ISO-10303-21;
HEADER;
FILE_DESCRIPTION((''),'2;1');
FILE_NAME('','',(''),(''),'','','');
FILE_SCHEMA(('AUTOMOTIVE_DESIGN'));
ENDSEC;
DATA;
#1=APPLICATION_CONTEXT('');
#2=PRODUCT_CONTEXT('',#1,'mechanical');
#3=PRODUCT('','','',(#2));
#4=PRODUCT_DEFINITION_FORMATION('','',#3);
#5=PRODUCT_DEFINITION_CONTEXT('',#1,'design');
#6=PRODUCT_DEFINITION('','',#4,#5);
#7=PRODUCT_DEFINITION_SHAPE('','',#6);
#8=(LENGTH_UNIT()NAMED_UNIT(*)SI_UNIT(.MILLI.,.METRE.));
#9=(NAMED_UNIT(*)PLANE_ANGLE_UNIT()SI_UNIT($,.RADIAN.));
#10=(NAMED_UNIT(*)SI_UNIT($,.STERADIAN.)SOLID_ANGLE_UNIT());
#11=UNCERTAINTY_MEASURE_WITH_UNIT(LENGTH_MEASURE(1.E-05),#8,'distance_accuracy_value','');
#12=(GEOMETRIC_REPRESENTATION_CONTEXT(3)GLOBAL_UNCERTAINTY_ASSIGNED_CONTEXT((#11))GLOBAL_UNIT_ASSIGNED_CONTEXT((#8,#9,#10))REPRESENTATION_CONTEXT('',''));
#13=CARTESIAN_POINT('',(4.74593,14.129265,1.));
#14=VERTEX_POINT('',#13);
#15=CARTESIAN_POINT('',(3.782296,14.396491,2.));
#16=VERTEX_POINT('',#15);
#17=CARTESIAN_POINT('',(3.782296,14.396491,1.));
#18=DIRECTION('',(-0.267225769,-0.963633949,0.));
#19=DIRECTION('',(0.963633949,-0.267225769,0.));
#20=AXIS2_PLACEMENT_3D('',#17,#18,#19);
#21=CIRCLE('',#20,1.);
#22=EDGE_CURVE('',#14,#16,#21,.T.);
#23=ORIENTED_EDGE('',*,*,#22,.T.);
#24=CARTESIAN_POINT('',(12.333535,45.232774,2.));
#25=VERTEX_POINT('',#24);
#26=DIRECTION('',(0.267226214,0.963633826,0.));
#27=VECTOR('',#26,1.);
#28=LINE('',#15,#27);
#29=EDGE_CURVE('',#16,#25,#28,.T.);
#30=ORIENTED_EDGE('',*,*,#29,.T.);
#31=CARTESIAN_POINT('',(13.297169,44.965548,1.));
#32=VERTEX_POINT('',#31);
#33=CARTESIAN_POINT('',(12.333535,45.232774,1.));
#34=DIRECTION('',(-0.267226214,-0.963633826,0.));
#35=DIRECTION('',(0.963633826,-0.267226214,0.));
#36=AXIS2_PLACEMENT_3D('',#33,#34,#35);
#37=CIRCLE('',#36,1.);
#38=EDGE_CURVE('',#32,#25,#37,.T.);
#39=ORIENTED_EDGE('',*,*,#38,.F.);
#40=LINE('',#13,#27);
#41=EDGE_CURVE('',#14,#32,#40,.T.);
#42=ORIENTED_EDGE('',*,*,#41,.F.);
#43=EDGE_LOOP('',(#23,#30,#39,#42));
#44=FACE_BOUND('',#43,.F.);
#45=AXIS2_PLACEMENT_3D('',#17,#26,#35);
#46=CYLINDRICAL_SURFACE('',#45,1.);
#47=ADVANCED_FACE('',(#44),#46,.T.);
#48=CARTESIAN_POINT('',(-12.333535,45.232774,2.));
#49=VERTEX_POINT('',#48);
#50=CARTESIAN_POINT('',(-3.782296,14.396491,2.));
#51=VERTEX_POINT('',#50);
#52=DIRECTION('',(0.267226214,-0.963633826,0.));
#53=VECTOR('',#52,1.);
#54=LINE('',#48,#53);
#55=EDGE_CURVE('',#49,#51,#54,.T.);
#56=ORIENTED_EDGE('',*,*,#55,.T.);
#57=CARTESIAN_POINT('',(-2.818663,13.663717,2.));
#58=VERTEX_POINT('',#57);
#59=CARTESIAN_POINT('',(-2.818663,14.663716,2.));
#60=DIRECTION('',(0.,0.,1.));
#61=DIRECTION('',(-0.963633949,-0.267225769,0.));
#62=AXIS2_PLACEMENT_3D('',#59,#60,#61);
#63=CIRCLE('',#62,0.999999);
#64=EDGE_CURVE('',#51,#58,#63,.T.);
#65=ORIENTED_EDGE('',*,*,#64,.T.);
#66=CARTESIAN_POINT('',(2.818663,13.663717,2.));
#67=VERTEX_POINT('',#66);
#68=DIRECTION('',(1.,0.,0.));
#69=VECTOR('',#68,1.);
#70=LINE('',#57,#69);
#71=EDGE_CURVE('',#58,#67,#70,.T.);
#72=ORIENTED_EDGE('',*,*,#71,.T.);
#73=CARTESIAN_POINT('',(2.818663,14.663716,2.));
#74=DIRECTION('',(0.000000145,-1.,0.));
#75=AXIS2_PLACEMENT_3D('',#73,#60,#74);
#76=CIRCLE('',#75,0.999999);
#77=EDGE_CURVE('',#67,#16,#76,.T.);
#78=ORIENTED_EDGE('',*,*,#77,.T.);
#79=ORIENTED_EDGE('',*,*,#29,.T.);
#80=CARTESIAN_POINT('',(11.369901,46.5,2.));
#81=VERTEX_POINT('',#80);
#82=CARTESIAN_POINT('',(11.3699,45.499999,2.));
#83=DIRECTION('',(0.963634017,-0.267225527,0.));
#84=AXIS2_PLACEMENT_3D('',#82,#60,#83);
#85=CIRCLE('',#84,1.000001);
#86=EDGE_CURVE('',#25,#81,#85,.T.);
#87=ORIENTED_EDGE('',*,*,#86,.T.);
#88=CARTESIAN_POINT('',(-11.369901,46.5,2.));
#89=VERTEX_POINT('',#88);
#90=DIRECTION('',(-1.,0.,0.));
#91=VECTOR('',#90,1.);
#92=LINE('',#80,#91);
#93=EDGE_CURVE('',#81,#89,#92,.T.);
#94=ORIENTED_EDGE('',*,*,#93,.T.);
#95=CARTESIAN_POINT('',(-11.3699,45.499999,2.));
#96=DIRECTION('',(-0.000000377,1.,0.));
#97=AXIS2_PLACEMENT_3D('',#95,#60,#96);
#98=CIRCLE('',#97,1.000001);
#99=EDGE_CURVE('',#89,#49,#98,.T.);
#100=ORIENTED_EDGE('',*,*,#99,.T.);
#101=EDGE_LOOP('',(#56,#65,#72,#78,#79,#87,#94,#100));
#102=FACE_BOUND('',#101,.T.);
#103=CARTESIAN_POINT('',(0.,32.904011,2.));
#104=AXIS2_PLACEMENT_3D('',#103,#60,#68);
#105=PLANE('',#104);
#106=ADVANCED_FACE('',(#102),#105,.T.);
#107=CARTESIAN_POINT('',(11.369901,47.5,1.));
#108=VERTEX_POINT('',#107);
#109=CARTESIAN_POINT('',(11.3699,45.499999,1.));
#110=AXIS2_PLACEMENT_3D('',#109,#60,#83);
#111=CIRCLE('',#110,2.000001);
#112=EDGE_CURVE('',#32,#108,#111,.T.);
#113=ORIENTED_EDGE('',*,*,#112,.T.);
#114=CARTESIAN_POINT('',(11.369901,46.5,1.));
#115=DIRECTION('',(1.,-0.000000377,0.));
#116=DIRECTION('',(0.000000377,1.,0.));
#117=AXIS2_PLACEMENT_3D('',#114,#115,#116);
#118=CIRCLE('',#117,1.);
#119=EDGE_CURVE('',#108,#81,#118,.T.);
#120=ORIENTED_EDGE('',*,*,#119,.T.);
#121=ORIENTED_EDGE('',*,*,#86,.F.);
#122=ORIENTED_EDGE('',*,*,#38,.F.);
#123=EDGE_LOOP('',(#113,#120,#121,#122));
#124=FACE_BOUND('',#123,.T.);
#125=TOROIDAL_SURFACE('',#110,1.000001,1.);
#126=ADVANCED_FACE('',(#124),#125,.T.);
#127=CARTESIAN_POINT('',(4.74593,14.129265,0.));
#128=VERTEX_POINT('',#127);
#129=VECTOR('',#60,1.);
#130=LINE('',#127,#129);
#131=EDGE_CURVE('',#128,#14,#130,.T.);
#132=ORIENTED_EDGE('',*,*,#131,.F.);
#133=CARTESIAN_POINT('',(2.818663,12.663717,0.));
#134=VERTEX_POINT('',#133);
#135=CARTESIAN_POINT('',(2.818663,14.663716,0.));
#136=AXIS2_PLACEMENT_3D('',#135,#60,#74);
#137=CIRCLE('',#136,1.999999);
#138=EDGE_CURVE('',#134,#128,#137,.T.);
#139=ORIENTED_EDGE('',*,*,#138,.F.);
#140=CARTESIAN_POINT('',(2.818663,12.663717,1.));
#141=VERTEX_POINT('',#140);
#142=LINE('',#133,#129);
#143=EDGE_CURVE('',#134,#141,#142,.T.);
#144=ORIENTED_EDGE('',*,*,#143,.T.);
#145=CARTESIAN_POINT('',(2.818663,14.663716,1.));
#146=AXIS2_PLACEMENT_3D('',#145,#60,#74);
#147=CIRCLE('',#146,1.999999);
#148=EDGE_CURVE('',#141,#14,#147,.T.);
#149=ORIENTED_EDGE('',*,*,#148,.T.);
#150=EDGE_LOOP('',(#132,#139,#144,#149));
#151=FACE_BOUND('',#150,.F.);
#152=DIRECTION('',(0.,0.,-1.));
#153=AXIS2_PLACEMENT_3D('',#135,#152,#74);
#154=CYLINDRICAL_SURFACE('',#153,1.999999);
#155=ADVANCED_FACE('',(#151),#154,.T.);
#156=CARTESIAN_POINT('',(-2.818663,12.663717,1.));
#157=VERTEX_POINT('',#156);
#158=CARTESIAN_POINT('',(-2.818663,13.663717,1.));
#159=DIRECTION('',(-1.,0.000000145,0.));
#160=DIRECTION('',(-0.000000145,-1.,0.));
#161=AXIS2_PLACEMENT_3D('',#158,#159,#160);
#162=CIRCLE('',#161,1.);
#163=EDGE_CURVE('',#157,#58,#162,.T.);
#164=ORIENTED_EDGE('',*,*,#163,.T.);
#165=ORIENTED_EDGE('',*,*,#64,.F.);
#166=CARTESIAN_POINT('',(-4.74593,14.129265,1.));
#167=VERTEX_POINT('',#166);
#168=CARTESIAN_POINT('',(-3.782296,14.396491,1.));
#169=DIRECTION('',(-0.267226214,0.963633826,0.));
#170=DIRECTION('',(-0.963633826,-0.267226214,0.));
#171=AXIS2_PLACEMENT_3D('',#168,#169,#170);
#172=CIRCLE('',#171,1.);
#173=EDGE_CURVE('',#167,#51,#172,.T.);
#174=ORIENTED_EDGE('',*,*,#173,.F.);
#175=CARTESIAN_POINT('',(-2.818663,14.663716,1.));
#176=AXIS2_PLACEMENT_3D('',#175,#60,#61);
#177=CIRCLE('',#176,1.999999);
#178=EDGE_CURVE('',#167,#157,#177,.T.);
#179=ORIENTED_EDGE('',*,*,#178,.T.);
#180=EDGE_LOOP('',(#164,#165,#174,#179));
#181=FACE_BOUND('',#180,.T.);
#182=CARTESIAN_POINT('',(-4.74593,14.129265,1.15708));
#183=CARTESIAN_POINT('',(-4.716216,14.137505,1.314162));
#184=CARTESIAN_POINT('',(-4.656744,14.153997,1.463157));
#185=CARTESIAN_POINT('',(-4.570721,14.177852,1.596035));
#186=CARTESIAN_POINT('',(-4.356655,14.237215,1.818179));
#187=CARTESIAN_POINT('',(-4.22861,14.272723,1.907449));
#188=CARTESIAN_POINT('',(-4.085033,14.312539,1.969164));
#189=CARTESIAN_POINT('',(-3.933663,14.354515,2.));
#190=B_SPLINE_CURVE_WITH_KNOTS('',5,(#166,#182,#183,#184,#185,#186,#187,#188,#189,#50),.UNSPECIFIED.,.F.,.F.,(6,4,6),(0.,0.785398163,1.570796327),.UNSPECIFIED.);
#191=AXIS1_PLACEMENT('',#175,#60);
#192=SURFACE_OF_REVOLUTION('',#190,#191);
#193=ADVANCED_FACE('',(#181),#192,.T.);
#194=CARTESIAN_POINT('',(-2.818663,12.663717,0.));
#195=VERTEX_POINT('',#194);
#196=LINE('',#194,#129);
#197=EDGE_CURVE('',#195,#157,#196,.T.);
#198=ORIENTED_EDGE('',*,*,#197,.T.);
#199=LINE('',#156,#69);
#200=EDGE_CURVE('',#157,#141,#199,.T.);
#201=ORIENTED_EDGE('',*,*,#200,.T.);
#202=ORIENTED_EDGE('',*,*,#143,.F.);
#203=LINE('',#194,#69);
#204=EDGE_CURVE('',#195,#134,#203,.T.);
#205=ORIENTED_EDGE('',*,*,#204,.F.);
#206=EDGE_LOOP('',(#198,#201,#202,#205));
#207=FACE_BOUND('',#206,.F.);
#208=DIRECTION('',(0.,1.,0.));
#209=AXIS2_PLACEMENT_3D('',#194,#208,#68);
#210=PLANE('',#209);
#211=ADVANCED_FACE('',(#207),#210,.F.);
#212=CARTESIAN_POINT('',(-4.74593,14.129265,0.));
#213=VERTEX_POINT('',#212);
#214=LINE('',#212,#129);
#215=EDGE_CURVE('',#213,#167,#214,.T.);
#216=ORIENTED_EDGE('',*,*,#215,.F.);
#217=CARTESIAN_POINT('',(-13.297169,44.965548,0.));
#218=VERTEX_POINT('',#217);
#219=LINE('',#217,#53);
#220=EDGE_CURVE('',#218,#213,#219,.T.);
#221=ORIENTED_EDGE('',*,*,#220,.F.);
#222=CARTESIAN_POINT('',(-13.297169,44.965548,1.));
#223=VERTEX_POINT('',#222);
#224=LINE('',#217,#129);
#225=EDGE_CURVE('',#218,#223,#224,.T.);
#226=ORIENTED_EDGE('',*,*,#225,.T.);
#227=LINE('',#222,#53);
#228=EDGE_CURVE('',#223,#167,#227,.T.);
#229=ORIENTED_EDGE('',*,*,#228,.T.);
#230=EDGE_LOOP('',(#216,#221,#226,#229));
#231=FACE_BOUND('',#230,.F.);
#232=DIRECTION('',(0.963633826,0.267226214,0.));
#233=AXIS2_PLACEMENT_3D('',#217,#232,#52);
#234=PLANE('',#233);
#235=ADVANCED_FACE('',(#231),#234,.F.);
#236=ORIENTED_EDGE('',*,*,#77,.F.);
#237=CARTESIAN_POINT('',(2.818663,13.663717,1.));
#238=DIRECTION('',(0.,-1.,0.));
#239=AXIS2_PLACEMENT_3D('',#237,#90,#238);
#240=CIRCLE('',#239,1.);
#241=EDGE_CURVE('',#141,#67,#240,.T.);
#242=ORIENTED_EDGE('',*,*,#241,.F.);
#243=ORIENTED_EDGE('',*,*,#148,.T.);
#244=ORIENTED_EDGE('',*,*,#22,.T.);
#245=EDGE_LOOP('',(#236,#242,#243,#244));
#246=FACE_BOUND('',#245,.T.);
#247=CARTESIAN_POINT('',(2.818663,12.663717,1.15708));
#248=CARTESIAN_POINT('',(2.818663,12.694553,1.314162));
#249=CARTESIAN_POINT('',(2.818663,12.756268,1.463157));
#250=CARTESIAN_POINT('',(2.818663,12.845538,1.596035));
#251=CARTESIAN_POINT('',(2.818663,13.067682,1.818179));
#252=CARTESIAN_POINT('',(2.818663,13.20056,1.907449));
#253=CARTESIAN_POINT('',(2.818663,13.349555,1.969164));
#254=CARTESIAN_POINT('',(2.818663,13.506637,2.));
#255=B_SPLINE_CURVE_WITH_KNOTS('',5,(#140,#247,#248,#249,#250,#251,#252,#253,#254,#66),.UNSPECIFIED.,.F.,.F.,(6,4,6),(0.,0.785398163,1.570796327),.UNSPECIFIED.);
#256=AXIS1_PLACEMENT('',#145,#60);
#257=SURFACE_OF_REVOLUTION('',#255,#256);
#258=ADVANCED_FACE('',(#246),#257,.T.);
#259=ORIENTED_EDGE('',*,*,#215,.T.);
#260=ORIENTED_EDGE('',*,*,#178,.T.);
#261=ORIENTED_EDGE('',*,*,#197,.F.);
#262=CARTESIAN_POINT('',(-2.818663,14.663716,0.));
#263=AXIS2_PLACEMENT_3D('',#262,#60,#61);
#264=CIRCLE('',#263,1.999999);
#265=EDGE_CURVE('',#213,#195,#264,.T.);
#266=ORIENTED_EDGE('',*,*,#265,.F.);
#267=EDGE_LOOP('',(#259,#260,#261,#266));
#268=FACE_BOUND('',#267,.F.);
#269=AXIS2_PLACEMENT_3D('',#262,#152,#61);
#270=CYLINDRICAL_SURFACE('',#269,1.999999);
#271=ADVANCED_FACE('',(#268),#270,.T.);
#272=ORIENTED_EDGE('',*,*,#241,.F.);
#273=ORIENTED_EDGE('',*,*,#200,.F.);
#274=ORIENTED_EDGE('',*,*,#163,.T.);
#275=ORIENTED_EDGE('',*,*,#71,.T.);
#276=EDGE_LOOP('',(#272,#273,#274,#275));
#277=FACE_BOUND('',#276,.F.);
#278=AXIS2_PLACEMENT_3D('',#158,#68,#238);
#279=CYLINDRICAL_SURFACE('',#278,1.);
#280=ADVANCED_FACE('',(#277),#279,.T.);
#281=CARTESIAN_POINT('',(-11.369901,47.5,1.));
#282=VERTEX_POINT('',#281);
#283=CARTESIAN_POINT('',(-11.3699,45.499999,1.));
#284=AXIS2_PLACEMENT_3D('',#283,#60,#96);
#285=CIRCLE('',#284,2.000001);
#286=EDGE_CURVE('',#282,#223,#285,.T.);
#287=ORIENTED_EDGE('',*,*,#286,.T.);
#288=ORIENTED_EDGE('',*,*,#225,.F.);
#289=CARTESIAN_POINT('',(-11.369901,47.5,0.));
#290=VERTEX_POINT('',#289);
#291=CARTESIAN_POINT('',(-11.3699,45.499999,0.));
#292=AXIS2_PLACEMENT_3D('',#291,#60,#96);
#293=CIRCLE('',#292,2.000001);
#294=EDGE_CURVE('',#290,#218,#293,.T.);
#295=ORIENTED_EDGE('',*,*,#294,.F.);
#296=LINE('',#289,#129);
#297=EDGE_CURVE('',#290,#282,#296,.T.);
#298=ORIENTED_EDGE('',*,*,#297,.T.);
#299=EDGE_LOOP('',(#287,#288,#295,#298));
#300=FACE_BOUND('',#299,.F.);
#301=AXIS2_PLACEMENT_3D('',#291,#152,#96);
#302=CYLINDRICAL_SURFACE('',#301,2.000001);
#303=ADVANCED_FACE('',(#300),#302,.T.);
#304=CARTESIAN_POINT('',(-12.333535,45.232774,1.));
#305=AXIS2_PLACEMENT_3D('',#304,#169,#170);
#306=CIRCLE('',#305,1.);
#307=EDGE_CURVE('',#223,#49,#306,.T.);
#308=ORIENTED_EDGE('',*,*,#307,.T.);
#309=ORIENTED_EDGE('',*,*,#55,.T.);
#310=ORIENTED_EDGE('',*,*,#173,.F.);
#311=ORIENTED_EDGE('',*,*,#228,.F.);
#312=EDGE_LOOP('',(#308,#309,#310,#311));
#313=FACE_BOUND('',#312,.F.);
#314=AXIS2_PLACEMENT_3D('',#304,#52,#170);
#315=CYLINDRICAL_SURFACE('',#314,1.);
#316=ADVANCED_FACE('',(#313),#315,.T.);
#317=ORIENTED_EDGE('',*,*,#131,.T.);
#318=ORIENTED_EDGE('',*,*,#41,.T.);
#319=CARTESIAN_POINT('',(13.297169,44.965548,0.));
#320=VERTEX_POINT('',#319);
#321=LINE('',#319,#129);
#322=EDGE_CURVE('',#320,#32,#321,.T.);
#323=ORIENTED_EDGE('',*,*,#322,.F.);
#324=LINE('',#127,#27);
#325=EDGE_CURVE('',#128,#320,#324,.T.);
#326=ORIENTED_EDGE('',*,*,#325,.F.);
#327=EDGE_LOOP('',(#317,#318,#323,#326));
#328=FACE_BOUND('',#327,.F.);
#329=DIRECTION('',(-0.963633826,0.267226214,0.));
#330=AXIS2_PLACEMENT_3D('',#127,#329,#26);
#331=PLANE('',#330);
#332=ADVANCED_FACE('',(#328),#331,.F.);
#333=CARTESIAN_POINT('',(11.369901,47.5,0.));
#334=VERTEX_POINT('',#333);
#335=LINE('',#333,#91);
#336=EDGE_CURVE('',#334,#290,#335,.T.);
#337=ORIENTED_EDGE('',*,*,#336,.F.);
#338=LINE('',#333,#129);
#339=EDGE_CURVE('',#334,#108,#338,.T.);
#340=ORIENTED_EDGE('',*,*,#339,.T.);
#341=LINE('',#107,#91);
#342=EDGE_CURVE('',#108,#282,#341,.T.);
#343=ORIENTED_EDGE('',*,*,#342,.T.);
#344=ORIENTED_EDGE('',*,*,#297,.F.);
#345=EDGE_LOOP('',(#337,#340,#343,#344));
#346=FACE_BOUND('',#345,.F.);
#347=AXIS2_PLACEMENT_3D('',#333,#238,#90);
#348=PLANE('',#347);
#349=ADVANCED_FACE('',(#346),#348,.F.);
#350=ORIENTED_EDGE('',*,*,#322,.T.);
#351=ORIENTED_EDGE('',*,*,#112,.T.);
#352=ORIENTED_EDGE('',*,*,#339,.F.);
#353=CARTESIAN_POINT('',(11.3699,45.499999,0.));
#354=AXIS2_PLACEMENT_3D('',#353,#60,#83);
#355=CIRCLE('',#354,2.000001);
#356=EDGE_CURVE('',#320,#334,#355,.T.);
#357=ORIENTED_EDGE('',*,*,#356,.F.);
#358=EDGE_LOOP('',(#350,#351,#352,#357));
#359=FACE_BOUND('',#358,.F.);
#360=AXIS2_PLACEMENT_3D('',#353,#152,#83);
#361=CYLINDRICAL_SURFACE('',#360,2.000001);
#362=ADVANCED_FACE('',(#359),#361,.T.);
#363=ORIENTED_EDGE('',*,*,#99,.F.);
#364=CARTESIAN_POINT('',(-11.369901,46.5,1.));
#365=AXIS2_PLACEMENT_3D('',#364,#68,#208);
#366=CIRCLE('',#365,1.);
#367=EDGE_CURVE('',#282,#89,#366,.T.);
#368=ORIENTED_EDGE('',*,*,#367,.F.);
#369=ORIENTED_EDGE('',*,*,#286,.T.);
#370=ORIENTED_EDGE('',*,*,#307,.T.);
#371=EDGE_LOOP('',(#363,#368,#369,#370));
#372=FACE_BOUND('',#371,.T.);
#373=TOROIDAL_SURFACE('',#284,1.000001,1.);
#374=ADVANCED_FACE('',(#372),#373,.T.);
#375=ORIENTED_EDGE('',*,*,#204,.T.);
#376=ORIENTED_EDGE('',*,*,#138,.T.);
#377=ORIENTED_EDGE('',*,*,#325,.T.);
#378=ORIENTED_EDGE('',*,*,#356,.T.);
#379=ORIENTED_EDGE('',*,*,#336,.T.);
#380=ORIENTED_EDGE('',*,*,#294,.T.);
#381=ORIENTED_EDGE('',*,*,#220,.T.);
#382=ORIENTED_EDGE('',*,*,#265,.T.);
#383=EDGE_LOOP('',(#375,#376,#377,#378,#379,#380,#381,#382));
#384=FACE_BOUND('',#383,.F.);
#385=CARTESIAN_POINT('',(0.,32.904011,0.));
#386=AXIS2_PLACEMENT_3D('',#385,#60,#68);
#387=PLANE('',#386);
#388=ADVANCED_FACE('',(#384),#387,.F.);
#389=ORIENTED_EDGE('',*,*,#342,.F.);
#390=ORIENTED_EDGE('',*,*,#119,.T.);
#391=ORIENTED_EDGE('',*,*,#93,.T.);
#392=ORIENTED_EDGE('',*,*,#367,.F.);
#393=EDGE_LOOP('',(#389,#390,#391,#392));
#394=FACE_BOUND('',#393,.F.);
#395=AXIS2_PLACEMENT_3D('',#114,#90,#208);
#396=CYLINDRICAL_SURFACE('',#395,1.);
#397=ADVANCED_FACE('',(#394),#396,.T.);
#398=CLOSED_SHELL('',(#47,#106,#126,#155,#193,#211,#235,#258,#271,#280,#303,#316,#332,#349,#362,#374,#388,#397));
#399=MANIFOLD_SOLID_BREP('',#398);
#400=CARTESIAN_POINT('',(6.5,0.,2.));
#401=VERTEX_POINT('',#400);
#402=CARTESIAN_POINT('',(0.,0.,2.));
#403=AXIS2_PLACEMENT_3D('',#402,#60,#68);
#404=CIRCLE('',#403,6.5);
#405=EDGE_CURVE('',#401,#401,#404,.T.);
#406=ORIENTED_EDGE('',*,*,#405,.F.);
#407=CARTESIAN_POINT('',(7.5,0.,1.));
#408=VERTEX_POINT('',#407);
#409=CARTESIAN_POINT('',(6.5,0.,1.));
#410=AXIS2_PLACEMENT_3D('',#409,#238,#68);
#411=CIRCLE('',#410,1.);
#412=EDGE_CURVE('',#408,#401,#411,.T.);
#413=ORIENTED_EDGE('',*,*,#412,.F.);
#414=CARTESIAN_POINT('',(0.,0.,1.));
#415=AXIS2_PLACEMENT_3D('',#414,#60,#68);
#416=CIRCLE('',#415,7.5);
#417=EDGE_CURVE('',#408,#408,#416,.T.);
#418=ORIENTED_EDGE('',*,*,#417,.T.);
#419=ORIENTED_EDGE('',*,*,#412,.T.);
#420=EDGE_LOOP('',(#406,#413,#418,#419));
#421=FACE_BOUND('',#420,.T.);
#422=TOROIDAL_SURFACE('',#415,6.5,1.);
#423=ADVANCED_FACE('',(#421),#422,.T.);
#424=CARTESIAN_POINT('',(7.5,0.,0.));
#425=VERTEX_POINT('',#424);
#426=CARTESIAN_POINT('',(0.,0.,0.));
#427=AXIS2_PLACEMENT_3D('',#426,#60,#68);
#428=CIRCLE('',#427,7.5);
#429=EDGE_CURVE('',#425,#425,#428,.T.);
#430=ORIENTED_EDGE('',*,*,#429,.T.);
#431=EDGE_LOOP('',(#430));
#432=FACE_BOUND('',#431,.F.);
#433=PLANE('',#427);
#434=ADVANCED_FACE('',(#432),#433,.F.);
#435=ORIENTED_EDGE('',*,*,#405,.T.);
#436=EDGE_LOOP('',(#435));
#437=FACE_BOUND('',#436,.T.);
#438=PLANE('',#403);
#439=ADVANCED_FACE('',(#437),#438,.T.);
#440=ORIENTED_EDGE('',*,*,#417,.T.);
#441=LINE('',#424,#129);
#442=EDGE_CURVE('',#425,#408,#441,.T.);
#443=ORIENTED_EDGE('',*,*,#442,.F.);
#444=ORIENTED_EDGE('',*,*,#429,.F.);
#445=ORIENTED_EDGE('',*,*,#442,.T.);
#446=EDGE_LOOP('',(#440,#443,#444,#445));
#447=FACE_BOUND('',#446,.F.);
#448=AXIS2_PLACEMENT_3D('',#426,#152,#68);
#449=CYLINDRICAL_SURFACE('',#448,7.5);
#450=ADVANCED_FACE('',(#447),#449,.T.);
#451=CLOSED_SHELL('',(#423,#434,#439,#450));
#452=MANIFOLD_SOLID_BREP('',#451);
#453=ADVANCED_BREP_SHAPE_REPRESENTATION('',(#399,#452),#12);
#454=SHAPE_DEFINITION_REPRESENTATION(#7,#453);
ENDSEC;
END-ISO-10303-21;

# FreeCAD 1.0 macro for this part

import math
import FreeCAD as App
import Part
import Sketcher


def edges_at(feature, points):
    """Names of the edges that pass closest to the given points."""
    edges = feature.Shape.Edges
    near = lambda p: min(range(len(edges)), key=lambda i: edges[i].distToShape(Part.Vertex(*p))[0])
    return sorted({f"Edge{near(p) + 1}" for p in points})

doc = App.newDocument("Part")
body = doc.addObject("PartDesign::Body", "Body")
body.AllowCompound = True

# Sketch on XY plane
sketch1 = body.newObject("Sketcher::SketchObject", "Sketch")
sketch1.AttachmentSupport = (doc.getObject("XY_Plane"), [""])
sketch1.MapMode = "FlatFace"
sketch1.addGeometry([
    Part.Circle(App.Vector(0, 0, 0), App.Vector(0, 0, 1), 7.5),  # 0
    Part.LineSegment(App.Vector(11.369901, 47.5, 0), App.Vector(-11.369901, 47.5, 0)),  # 1
    Part.ArcOfCircle(Part.Circle(App.Vector(-11.3699, 45.499999, 0), App.Vector(0, 0, 1), 2.000001), math.radians(90.000022), math.radians(195.499236)),  # 2
    Part.LineSegment(App.Vector(-13.297169, 44.965548, 0), App.Vector(-4.74593, 14.129265, 0)),  # 3
    Part.ArcOfCircle(Part.Circle(App.Vector(-2.818663, 14.663716, 0), App.Vector(0, 0, 1), 1.999999), math.radians(-164.50075), math.radians(-90.000008)),  # 4
    Part.LineSegment(App.Vector(-2.818663, 12.663717, 0), App.Vector(2.818663, 12.663717, 0)),  # 5
    Part.ArcOfCircle(Part.Circle(App.Vector(2.818663, 14.663716, 0), App.Vector(0, 0, 1), 1.999999), math.radians(-89.999992), math.radians(-15.49925)),  # 6
    Part.LineSegment(App.Vector(4.74593, 14.129265, 0), App.Vector(13.297169, 44.965548, 0)),  # 7
    Part.ArcOfCircle(Part.Circle(App.Vector(11.3699, 45.499999, 0), App.Vector(0, 0, 1), 2.000001), math.radians(-15.499236), math.radians(89.999978)),  # 8
], False)
sketch1.addConstraint([
    Sketcher.Constraint("Tangent", 1, 2, 2, 1),
    Sketcher.Constraint("Tangent", 2, 2, 3, 1),
    Sketcher.Constraint("Tangent", 3, 2, 4, 1),
    Sketcher.Constraint("Tangent", 4, 2, 5, 1),
    Sketcher.Constraint("Tangent", 5, 2, 6, 1),
    Sketcher.Constraint("Tangent", 6, 2, 7, 1),
    Sketcher.Constraint("Tangent", 7, 2, 8, 1),
    Sketcher.Constraint("Tangent", 8, 2, 1, 1),
    Sketcher.Constraint("Horizontal", 1),
    Sketcher.Constraint("Horizontal", 5),
    Sketcher.Constraint("Coincident", 0, 3, -1, 1),
    Sketcher.Constraint("Equal", 2, 4),
    Sketcher.Constraint("Equal", 4, 6),
    Sketcher.Constraint("Equal", 6, 8),
    Sketcher.Constraint("Symmetric", 3, 2, 6, 2, -2),
    Sketcher.Constraint("Diameter", 0, 15.0),
    Sketcher.Constraint("Radius", 2, 2.000001),
    Sketcher.Constraint("Distance", 3, 32.000001),
    Sketcher.Constraint("DistanceY", -1, 1, 2, 3, 45.499999),
    Sketcher.Constraint("DistanceX", 2, 3, -1, 1, 11.3699),
    Sketcher.Constraint("DistanceX", 5, 1, 5, 2, 5.637326),
])
pad1 = body.newObject("PartDesign::Pad", "Pad")
pad1.Profile = sketch1
pad1.Length = 2
doc.recompute()

fillet = body.newObject("PartDesign::Fillet", "Fillet")
fillet.Base = (pad1, edges_at(pad1, [(-9.022, 29.547, 2), (-7.5, 0, 2)]))
fillet.Radius = 1

doc.recompute()
